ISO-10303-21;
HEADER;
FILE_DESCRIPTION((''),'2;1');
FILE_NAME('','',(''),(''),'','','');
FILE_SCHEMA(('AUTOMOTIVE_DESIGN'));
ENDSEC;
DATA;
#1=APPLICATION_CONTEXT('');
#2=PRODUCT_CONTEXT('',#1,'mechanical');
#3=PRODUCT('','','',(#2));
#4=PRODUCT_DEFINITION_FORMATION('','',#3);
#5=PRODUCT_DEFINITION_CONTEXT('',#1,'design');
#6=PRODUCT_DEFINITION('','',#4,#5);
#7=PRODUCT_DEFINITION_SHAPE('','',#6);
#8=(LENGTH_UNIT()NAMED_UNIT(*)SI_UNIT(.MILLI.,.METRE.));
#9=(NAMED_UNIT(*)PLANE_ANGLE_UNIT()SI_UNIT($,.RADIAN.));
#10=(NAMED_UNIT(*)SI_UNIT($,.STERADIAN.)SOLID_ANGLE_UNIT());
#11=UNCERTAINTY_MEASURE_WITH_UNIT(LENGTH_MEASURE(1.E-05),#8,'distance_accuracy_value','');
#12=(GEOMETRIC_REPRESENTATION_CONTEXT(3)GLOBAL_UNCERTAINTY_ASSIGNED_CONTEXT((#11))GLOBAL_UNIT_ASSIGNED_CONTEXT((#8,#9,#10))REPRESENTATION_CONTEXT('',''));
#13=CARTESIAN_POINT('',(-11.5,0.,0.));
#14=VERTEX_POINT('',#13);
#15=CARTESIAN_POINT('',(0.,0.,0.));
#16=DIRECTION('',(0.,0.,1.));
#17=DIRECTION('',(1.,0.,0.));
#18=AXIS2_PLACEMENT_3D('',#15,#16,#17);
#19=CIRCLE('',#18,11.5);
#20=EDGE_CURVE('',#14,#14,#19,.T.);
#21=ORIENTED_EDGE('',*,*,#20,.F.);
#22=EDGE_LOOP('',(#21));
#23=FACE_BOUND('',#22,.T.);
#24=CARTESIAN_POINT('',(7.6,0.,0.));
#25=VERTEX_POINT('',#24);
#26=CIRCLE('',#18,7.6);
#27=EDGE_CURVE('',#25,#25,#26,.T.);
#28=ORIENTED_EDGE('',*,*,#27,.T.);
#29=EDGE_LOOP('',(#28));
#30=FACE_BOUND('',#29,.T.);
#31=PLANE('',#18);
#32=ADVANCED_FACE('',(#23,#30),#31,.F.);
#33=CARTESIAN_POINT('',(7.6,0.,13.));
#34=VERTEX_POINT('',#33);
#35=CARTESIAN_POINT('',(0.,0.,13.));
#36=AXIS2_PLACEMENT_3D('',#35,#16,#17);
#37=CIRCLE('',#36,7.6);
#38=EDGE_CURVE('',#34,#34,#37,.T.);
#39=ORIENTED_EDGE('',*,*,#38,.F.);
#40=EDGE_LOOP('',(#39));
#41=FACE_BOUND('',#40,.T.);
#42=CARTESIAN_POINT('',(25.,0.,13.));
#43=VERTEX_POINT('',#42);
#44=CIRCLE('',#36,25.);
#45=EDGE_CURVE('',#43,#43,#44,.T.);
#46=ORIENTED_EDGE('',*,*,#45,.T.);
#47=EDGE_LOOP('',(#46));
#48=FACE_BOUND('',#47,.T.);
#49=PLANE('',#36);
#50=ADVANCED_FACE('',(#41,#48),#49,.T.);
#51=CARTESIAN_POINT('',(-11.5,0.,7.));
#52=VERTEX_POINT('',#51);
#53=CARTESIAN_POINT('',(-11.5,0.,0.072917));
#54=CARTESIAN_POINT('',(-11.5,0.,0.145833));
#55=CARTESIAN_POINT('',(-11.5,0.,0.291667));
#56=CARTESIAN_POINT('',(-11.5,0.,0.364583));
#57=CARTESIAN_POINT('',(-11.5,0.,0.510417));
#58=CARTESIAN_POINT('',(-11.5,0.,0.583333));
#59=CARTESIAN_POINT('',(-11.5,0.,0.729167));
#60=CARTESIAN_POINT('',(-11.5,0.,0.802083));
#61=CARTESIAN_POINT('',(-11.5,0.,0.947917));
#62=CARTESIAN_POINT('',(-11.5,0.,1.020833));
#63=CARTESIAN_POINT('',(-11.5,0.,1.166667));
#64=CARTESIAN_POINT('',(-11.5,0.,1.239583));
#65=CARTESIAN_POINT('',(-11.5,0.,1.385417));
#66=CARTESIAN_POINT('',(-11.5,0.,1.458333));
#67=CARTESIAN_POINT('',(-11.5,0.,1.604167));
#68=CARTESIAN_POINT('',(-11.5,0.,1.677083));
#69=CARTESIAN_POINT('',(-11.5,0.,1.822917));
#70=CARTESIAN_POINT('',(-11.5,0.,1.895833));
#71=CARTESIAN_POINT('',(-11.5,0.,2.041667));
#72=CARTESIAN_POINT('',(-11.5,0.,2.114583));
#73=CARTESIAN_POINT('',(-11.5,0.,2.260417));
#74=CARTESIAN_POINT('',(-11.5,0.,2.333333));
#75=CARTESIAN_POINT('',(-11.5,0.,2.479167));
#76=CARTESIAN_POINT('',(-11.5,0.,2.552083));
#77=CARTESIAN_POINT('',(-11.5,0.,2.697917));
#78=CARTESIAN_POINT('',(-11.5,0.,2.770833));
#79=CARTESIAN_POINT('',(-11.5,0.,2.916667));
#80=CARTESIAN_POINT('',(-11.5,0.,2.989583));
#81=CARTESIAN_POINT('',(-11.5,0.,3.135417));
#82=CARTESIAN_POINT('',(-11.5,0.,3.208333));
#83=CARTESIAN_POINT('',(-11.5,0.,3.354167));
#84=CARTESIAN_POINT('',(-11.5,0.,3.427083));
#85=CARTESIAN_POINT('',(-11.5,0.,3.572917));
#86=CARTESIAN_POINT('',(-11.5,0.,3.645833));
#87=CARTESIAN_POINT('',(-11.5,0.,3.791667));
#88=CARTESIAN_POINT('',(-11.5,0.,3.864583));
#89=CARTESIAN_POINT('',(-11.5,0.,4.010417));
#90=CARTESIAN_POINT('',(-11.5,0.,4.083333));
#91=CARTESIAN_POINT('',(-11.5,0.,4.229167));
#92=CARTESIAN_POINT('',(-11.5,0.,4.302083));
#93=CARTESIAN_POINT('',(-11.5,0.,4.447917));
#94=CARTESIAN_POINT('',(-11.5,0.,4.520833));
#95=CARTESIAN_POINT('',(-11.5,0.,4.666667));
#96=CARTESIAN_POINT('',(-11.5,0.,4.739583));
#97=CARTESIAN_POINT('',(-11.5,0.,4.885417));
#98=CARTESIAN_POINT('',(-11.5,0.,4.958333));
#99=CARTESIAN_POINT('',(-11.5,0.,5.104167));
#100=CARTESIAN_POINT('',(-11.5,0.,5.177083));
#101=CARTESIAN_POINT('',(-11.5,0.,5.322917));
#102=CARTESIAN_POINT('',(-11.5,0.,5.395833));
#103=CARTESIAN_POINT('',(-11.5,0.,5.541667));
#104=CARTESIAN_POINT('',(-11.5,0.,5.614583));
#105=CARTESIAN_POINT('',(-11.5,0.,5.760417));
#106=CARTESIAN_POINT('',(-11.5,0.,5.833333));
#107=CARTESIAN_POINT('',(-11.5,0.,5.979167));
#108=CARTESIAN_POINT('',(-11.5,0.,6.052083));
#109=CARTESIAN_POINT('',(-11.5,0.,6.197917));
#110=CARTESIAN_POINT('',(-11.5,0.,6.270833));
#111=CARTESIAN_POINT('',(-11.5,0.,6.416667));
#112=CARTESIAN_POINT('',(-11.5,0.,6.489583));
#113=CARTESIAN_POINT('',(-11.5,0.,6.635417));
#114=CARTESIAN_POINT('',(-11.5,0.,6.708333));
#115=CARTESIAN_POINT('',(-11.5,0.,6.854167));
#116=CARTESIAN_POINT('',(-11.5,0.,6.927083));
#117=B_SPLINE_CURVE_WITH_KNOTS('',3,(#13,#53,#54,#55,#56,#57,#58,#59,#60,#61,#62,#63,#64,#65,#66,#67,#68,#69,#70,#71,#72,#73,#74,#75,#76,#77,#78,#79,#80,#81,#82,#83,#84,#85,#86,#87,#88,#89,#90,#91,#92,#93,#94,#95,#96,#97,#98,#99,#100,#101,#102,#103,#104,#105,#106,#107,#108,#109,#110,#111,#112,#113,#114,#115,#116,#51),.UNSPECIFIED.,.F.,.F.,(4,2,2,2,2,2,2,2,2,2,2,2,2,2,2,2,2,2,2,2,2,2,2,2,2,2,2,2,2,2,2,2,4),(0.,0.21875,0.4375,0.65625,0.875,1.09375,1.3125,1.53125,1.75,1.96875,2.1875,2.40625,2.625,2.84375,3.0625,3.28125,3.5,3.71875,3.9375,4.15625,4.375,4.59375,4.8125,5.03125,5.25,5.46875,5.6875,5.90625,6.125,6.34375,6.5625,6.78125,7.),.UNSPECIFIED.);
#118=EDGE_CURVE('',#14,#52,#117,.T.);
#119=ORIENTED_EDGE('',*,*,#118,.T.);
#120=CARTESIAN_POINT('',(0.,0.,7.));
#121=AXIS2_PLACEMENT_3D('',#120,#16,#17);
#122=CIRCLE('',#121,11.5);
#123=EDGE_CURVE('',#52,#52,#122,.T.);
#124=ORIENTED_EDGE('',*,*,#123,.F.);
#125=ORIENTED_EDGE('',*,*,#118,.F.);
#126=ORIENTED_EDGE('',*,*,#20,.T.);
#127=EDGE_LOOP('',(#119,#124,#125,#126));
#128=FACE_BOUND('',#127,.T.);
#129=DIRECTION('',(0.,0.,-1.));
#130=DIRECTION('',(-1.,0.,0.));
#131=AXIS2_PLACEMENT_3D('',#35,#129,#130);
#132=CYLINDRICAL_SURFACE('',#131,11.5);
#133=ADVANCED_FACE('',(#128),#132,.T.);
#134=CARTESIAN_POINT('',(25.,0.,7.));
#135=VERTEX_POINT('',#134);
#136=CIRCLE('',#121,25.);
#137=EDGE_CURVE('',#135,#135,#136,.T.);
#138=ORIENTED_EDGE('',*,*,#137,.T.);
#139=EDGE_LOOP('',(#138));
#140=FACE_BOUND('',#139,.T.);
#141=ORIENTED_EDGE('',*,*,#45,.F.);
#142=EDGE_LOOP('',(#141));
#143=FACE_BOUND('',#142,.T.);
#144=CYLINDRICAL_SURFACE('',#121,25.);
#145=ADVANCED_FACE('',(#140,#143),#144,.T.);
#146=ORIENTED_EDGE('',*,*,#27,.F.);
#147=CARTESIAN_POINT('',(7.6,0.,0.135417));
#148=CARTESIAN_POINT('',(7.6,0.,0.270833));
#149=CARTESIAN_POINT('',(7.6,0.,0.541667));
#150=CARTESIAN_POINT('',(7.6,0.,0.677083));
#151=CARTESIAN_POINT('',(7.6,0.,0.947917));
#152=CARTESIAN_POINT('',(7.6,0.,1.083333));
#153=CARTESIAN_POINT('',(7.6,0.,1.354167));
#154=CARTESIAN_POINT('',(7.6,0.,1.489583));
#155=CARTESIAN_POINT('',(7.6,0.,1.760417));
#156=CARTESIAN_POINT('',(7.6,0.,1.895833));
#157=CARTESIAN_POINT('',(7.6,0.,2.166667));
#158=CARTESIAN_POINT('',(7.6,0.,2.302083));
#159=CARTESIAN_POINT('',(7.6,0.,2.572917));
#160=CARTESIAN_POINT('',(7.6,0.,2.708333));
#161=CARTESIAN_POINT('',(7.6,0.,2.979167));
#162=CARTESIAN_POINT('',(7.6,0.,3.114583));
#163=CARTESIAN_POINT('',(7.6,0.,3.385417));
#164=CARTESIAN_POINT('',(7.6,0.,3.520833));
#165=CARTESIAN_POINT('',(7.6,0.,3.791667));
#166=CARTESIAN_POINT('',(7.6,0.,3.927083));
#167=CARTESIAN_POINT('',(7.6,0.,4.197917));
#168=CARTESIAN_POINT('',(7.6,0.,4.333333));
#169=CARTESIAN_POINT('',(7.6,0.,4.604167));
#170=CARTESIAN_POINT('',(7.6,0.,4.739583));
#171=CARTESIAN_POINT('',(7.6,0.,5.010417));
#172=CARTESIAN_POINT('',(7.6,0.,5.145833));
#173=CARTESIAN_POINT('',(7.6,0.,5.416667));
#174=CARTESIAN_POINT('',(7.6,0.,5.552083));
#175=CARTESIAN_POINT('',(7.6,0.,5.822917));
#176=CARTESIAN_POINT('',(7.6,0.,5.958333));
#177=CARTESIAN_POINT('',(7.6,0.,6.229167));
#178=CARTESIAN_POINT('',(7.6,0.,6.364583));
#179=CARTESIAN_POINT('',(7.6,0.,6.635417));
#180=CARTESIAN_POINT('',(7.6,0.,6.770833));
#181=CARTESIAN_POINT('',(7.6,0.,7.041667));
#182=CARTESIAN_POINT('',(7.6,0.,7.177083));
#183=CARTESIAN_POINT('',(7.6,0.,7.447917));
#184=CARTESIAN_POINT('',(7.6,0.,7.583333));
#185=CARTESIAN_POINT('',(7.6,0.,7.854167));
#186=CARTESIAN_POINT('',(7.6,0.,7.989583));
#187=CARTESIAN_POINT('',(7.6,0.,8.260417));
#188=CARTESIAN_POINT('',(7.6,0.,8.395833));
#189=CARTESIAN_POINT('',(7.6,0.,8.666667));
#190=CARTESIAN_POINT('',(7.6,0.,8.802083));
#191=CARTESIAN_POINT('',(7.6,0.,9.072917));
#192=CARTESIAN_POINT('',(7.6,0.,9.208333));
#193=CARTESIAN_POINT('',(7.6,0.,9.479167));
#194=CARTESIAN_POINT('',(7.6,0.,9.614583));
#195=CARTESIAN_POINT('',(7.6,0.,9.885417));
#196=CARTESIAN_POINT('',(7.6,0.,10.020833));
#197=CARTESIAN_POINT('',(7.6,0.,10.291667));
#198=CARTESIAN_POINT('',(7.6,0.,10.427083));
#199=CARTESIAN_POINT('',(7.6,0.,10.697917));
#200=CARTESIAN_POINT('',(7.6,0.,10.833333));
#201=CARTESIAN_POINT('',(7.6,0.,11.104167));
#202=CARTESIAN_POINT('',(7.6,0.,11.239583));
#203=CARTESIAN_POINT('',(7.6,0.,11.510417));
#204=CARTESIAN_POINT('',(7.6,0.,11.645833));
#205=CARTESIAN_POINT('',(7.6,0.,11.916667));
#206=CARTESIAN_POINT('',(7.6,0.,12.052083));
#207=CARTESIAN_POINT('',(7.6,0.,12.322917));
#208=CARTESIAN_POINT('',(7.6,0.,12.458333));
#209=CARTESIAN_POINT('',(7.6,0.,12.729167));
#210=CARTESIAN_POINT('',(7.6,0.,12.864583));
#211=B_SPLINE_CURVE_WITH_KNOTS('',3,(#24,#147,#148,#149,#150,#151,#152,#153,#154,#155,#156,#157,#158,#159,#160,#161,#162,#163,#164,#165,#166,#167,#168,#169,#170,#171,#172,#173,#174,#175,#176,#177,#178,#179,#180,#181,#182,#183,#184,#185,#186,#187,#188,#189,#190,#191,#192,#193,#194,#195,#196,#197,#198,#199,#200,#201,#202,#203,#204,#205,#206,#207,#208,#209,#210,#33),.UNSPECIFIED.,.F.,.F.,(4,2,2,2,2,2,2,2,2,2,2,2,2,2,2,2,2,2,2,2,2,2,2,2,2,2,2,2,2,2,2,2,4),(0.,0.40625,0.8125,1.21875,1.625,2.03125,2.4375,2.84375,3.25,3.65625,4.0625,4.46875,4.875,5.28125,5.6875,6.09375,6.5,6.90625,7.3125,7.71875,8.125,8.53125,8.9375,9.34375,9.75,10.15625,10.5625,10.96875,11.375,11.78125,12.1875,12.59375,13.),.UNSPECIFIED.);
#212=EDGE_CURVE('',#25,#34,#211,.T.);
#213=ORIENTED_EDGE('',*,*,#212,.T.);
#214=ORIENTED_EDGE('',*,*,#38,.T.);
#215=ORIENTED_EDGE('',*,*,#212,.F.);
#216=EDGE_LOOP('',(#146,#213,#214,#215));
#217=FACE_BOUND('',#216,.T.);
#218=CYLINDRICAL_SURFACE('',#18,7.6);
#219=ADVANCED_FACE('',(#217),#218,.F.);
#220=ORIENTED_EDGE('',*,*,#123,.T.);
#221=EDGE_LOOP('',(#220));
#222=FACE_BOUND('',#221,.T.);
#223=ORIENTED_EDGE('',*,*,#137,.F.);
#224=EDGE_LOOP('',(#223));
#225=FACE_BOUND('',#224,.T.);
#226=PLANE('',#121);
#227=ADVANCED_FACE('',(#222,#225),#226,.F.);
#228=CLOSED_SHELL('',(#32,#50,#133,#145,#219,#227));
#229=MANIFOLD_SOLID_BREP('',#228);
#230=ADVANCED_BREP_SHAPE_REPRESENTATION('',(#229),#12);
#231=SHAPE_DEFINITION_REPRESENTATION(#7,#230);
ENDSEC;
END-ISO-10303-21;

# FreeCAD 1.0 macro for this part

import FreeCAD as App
import Part
import Sketcher
from FreeCAD import Vector
Q = App.Units.Quantity

doc = App.newDocument("Part")
body = doc.addObject("PartDesign::Body", "Body")

# Sketch on XY plane
sketch1 = doc.addObject("Sketcher::SketchObject", "Sketch")
body.addObject(sketch1)
sketch1.AttachmentSupport = (doc.XY_Plane, [""])
sketch1.MapMode = "FlatFace"
sketch1.addGeometry(Part.Circle(Vector(0, 0, 0), Vector(0, 0, 1), 12), False)
sketch1.addConstraint([
    Sketcher.Constraint("Coincident", 0, 3, -1, 1),
    Sketcher.Constraint("Diameter", 0, Q("23 mm")),
])
pad1 = doc.addObject("PartDesign::Pad", "Pad")
body.addObject(pad1)
pad1.Profile = sketch1
pad1.Length = 13

# Sketch on XY plane
sketch2 = doc.addObject("Sketcher::SketchObject", "Sketch001")
body.addObject(sketch2)
sketch2.AttachmentSupport = (doc.XY_Plane, [""])
sketch2.MapMode = "FlatFace"
sketch2.AttachmentOffset = App.Placement(Vector(0, 0, 13), App.Rotation())
sketch2.addGeometry([
    Part.Circle(Vector(0, 0, 0), Vector(0, 0, 1), 25),
    Part.Circle(Vector(0, 0, 0), Vector(0, 0, 1), 8),
], False)
sketch2.addConstraint([
    Sketcher.Constraint("Coincident", 0, 3, -1, 1),
    Sketcher.Constraint("Coincident", 1, 3, -1, 1),
    Sketcher.Constraint("Diameter", 0, Q("50 mm")),
    Sketcher.Constraint("Diameter", 1, Q("15 mm")),
])
pad2 = doc.addObject("PartDesign::Pad", "Pad001")
body.addObject(pad2)
pad2.Profile = sketch2
pad2.Length = 6
pad2.Reversed = True

# Sketch on XY plane
sketch3 = doc.addObject("Sketcher::SketchObject", "Sketch002")
body.addObject(sketch3)
sketch3.AttachmentSupport = (doc.XY_Plane, [""])
sketch3.MapMode = "FlatFace"
sketch3.AttachmentOffset = App.Placement(Vector(0, 0, 13), App.Rotation())
sketch3.addGeometry(Part.Circle(Vector(0, 0, 0), Vector(0, 0, 1), 8), False)
sketch3.addConstraint([
    Sketcher.Constraint("Coincident", 0, 3, -1, 1),
    Sketcher.Constraint("Diameter", 0, Q("15.2 mm")),
])
pocket1 = doc.addObject("PartDesign::Pocket", "Pocket")
body.addObject(pocket1)
pocket1.Profile = sketch3
pocket1.Type = "ThroughAll"

doc.recompute()
